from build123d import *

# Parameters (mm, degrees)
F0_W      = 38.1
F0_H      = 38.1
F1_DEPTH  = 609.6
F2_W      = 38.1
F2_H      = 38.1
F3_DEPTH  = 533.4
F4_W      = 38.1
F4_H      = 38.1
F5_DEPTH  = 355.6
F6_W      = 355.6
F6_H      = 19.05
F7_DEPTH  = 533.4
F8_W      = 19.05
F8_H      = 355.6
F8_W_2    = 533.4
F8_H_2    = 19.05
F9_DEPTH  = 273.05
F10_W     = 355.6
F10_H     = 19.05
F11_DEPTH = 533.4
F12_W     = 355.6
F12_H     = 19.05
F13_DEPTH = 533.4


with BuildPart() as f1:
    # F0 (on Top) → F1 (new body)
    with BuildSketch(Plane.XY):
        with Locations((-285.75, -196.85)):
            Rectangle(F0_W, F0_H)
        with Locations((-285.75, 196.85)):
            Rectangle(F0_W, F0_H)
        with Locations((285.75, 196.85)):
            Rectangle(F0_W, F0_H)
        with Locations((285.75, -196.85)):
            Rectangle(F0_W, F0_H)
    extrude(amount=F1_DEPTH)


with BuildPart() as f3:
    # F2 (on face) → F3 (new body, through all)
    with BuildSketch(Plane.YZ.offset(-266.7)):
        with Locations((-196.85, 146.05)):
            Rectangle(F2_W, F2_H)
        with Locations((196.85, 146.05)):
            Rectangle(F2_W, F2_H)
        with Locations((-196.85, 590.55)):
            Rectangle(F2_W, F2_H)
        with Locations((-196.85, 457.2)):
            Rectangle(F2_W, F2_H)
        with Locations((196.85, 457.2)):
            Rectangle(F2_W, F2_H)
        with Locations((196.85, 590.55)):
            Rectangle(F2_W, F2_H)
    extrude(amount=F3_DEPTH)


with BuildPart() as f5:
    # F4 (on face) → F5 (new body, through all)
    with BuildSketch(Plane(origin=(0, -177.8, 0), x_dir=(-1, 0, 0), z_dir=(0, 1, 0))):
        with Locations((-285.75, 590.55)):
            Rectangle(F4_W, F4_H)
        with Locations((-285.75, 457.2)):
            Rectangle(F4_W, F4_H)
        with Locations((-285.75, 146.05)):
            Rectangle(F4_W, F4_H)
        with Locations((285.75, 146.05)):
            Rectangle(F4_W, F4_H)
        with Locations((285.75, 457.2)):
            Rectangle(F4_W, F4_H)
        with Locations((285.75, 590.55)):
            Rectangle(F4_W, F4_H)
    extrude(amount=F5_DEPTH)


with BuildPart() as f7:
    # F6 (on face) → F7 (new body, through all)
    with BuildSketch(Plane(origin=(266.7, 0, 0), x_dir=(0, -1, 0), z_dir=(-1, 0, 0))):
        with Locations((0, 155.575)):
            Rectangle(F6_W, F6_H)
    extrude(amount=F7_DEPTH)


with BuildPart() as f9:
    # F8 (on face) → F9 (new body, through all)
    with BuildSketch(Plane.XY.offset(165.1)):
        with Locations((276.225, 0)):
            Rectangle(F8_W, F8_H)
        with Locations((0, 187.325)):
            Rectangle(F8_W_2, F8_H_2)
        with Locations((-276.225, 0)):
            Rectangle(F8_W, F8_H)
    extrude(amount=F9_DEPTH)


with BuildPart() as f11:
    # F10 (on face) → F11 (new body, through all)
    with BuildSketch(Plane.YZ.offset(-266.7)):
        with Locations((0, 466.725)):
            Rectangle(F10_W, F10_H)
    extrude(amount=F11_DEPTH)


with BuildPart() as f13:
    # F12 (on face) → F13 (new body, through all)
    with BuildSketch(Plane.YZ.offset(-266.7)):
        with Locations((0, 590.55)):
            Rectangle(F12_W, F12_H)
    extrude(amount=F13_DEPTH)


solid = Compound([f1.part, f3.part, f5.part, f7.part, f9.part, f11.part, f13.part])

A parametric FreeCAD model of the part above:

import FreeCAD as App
import Part
import Sketcher
Q = App.Units.Quantity


def add_polygon(sketch, points):
    """Adds a closed chain of lines whose ends are joined by coincident constraints."""
    first, n = sketch.GeometryCount, len(points)
    for a, b in zip(points, points[1:] + points[:1]):
        sketch.addGeometry(Part.LineSegment(App.Vector(*a, 0), App.Vector(*b, 0)), False)
    for i in range(n):
        sketch.addConstraint(Sketcher.Constraint("Coincident", first + i, 2, first + (i + 1) % n, 1))

doc = App.newDocument("Part")
body = doc.addObject("PartDesign::Body", "Body")
body.AllowCompound = True

# Sketch on XY plane
sketch1 = body.newObject("Sketcher::SketchObject", "Sketch")
sketch1.AttachmentSupport = (doc.getObject("XY_Plane"), [""])
sketch1.MapMode = "FlatFace"
add_polygon(sketch1, [(-304.8, -177.8), (-304.8, -215.9), (-266.7, -215.9), (-266.7, -177.8)])  # lines 0-3
add_polygon(sketch1, [(-304.8, 215.9), (-304.8, 177.8), (-266.7, 177.8), (-266.7, 215.9)])  # lines 4-7
add_polygon(sketch1, [(266.7, 215.9), (266.7, 177.8), (304.8, 177.8), (304.8, 215.9)])  # lines 8-11
add_polygon(sketch1, [(266.7, -177.8), (266.7, -215.9), (304.8, -215.9), (304.8, -177.8)])  # lines 12-15
sketch1.addConstraint([
    Sketcher.Constraint("Vertical", 0),
    Sketcher.Constraint("Horizontal", 1),
    Sketcher.Constraint("Vertical", 2),
    Sketcher.Constraint("Horizontal", 3),
    Sketcher.Constraint("Vertical", 4),
    Sketcher.Constraint("Horizontal", 5),
    Sketcher.Constraint("Vertical", 6),
    Sketcher.Constraint("Horizontal", 7),
    Sketcher.Constraint("Vertical", 8),
    Sketcher.Constraint("Horizontal", 9),
    Sketcher.Constraint("Vertical", 10),
    Sketcher.Constraint("Horizontal", 11),
    Sketcher.Constraint("Vertical", 12),
    Sketcher.Constraint("Horizontal", 13),
    Sketcher.Constraint("Vertical", 14),
    Sketcher.Constraint("Horizontal", 15),
    Sketcher.Constraint("Symmetric", 2, 2, 8, 2, -1, 1),
    Sketcher.Constraint("Symmetric", 0, 2, 10, 2, -1, 1),
    Sketcher.Constraint("Symmetric", 6, 2, 12, 2, -1, 1),
    Sketcher.Constraint("Symmetric", 4, 2, 14, 2, -1, 1),
    Sketcher.Constraint("Symmetric", 5, 2, 8, 2, -2),
    Sketcher.Constraint("Symmetric", 7, 2, 10, 2, -2),
    Sketcher.Constraint("Equal", 15, 0),
    Sketcher.Constraint("DistanceX", 1, 1, 1, 2, Q("1.5 in")),
    Sketcher.Constraint("DistanceX", 0, 2, -1, 1, Q("12 in")),
    Sketcher.Constraint("DistanceY", 2, 2, -1, 1, Q("7 in")),
])
pad1 = body.newObject("PartDesign::Pad", "Pad")
pad1.Profile = sketch1
pad1.Length = Q("24 in")
body2 = doc.addObject("PartDesign::Body", "Body001")
body2.AllowCompound = True

# Sketch on YZ plane
sketch2 = body2.newObject("Sketcher::SketchObject", "Sketch001")
sketch2.AttachmentSupport = (doc.getObject("YZ_Plane001"), [""])
sketch2.MapMode = "FlatFace"
sketch2.AttachmentOffset = App.Placement(App.Vector(0, 0, -10.5 * 25.4), App.Rotation())
add_polygon(sketch2, [(-215.9, 165.1), (-215.9, 127), (-177.8, 127), (-177.8, 165.1)])  # lines 0-3
add_polygon(sketch2, [(177.8, 165.1), (177.8, 127), (215.9, 127), (215.9, 165.1)])  # lines 4-7
add_polygon(sketch2, [(-215.9, 609.6), (-215.9, 571.5), (-177.8, 571.5), (-177.8, 609.6)])  # lines 8-11
add_polygon(sketch2, [(-215.9, 476.25), (-215.9, 438.15), (-177.8, 438.15), (-177.8, 476.25)])  # lines 12-15
add_polygon(sketch2, [(177.8, 476.25), (177.8, 438.15), (215.9, 438.15), (215.9, 476.25)])  # lines 16-19
add_polygon(sketch2, [(177.8, 609.6), (177.8, 571.5), (215.9, 571.5), (215.9, 609.6)])  # lines 20-23
sketch2.addConstraint([
    Sketcher.Constraint("Vertical", 0),
    Sketcher.Constraint("Horizontal", 1),
    Sketcher.Constraint("Vertical", 2),
    Sketcher.Constraint("Horizontal", 3),
    Sketcher.Constraint("Vertical", 4),
    Sketcher.Constraint("Horizontal", 5),
    Sketcher.Constraint("Vertical", 6),
    Sketcher.Constraint("Horizontal", 7),
    Sketcher.Constraint("Vertical", 8),
    Sketcher.Constraint("Horizontal", 9),
    Sketcher.Constraint("Vertical", 10),
    Sketcher.Constraint("Horizontal", 11),
    Sketcher.Constraint("Vertical", 12),
    Sketcher.Constraint("Horizontal", 13),
    Sketcher.Constraint("Vertical", 14),
    Sketcher.Constraint("Horizontal", 15),
    Sketcher.Constraint("Vertical", 16),
    Sketcher.Constraint("Horizontal", 17),
    Sketcher.Constraint("Vertical", 18),
    Sketcher.Constraint("Horizontal", 19),
    Sketcher.Constraint("Vertical", 20),
    Sketcher.Constraint("Horizontal", 21),
    Sketcher.Constraint("Vertical", 22),
    Sketcher.Constraint("Horizontal", 23),
    Sketcher.Constraint("Symmetric", 1, 2, 4, 2, -2),
    Sketcher.Constraint("Symmetric", 3, 2, 6, 2, -2),
    Sketcher.Constraint("Symmetric", 13, 2, 16, 2, -2),
    Sketcher.Constraint("Symmetric", 15, 2, 18, 2, -2),
    Sketcher.Constraint("Symmetric", 9, 2, 20, 2, -2),
    Sketcher.Constraint("Symmetric", 11, 2, 22, 2, -2),
    Sketcher.Constraint("Vertical", 3, 2, 8, 2),
    Sketcher.Constraint("Vertical", 2, 2, 9, 2),
    Sketcher.Constraint("Vertical", 11, 2, 12, 2),
    Sketcher.Constraint("Vertical", 10, 2, 13, 2),
    Sketcher.Constraint("Equal", 23, 0),
    Sketcher.Constraint("Equal", 6, 8),
    Sketcher.Constraint("Equal", 10, 12),
    Sketcher.Constraint("DistanceX", 1, 1, 1, 2, Q("1.5 in")),
    Sketcher.Constraint("DistanceY", -1, 1, 0, 2, Q("5 in")),
    Sketcher.Constraint("DistanceX", 1, 2, -1, 1, Q("7 in")),
    Sketcher.Constraint("DistanceY", -1, 1, 10, 2, Q("24 in")),
    Sketcher.Constraint("DistanceY", -1, 1, 12, 2, Q("17.25 in")),
])
pad2 = body2.newObject("PartDesign::Pad", "Pad001")
pad2.Profile = sketch2
pad2.Length = Q("21 in")
body3 = doc.addObject("PartDesign::Body", "Body002")
body3.AllowCompound = True

# Sketch on XZ plane
sketch3 = body3.newObject("Sketcher::SketchObject", "Sketch002")
sketch3.AttachmentSupport = (doc.getObject("XZ_Plane002"), [""])
sketch3.MapMode = "FlatFace"
sketch3.AttachmentOffset = App.Placement(App.Vector(0, 0, 7 * 25.4), App.Rotation())
add_polygon(sketch3, [(304.8, 609.6), (304.8, 571.5), (266.7, 571.5), (266.7, 609.6)])  # lines 0-3
add_polygon(sketch3, [(304.8, 476.25), (304.8, 438.15), (266.7, 438.15), (266.7, 476.25)])  # lines 4-7
add_polygon(sketch3, [(304.8, 165.1), (304.8, 127), (266.7, 127), (266.7, 165.1)])  # lines 8-11
add_polygon(sketch3, [(-266.7, 165.1), (-266.7, 127), (-304.8, 127), (-304.8, 165.1)])  # lines 12-15
add_polygon(sketch3, [(-266.7, 476.25), (-266.7, 438.15), (-304.8, 438.15), (-304.8, 476.25)])  # lines 16-19
add_polygon(sketch3, [(-266.7, 609.6), (-266.7, 571.5), (-304.8, 571.5), (-304.8, 609.6)])  # lines 20-23
sketch3.addConstraint([
    Sketcher.Constraint("Vertical", 0),
    Sketcher.Constraint("Horizontal", 1),
    Sketcher.Constraint("Vertical", 2),
    Sketcher.Constraint("Horizontal", 3),
    Sketcher.Constraint("Vertical", 4),
    Sketcher.Constraint("Horizontal", 5),
    Sketcher.Constraint("Vertical", 6),
    Sketcher.Constraint("Horizontal", 7),
    Sketcher.Constraint("Vertical", 8),
    Sketcher.Constraint("Horizontal", 9),
    Sketcher.Constraint("Vertical", 10),
    Sketcher.Constraint("Horizontal", 11),
    Sketcher.Constraint("Vertical", 12),
    Sketcher.Constraint("Horizontal", 13),
    Sketcher.Constraint("Vertical", 14),
    Sketcher.Constraint("Horizontal", 15),
    Sketcher.Constraint("Vertical", 16),
    Sketcher.Constraint("Horizontal", 17),
    Sketcher.Constraint("Vertical", 18),
    Sketcher.Constraint("Horizontal", 19),
    Sketcher.Constraint("Vertical", 20),
    Sketcher.Constraint("Horizontal", 21),
    Sketcher.Constraint("Vertical", 22),
    Sketcher.Constraint("Horizontal", 23),
    Sketcher.Constraint("Symmetric", 9, 2, 12, 2, -2),
    Sketcher.Constraint("Symmetric", 11, 2, 14, 2, -2),
    Sketcher.Constraint("Symmetric", 5, 2, 16, 2, -2),
    Sketcher.Constraint("Symmetric", 7, 2, 18, 2, -2),
    Sketcher.Constraint("Symmetric", 1, 2, 20, 2, -2),
    Sketcher.Constraint("Symmetric", 3, 2, 22, 2, -2),
    Sketcher.Constraint("Vertical", 3, 2, 4, 2),
    Sketcher.Constraint("Vertical", 2, 2, 5, 2),
    Sketcher.Constraint("Vertical", 7, 2, 8, 2),
    Sketcher.Constraint("Vertical", 6, 2, 9, 2),
    Sketcher.Constraint("Equal", 23, 0),
    Sketcher.Constraint("Equal", 2, 4),
    Sketcher.Constraint("Equal", 6, 8),
    Sketcher.Constraint("DistanceX", 1, 2, 1, 1, Q("1.5 in")),
    Sketcher.Constraint("DistanceX", -1, 1, 0, 2, Q("12 in")),
    Sketcher.Constraint("DistanceY", -1, 1, 2, 2, Q("24 in")),
    Sketcher.Constraint("DistanceY", -1, 1, 8, 2, Q("5 in")),
    Sketcher.Constraint("DistanceY", -1, 1, 4, 2, Q("17.25 in")),
])
pad3 = body3.newObject("PartDesign::Pad", "Pad002")
pad3.Profile = sketch3
pad3.Length = Q("14 in")
pad3.Reversed = True
body4 = doc.addObject("PartDesign::Body", "Body003")

# Sketch on YZ plane
sketch4 = body4.newObject("Sketcher::SketchObject", "Sketch003")
sketch4.AttachmentSupport = (doc.getObject("YZ_Plane003"), [""])
sketch4.MapMode = "FlatFace"
sketch4.AttachmentOffset = App.Placement(App.Vector(0, 0, 10.5 * 25.4), App.Rotation())
add_polygon(sketch4, [(177.8, 165.1), (177.8, 146.05), (-177.8, 146.05), (-177.8, 165.1)])  # lines 0-3
sketch4.addConstraint([
    Sketcher.Constraint("Vertical", 0),
    Sketcher.Constraint("Horizontal", 1),
    Sketcher.Constraint("Vertical", 2),
    Sketcher.Constraint("Horizontal", 3),
    Sketcher.Constraint("DistanceX", 1, 2, 1, 1, Q("14 in")),
    Sketcher.Constraint("DistanceX", -1, 1, 0, 2, Q("7 in")),
    Sketcher.Constraint("DistanceY", 0, 2, 0, 1, Q("0.75 in")),
    Sketcher.Constraint("DistanceY", -1, 1, 2, 2, Q("6.5 in")),
])
pad4 = body4.newObject("PartDesign::Pad", "Pad003")
pad4.Profile = sketch4
pad4.Length = Q("21 in")
pad4.Reversed = True
body5 = doc.addObject("PartDesign::Body", "Body004")
body5.AllowCompound = True

# Sketch on XY plane
sketch5 = body5.newObject("Sketcher::SketchObject", "Sketch004")
sketch5.AttachmentSupport = (doc.getObject("XY_Plane004"), [""])
sketch5.MapMode = "FlatFace"
sketch5.AttachmentOffset = App.Placement(App.Vector(0, 0, 6.5 * 25.4), App.Rotation())
add_polygon(sketch5, [(266.7, 177.8), (266.7, -177.8), (285.75, -177.8), (285.75, 177.8)])  # lines 0-3
add_polygon(sketch5, [(-266.7, 196.85), (-266.7, 177.8), (266.7, 177.8), (266.7, 196.85)])  # lines 4-7
add_polygon(sketch5, [(-285.75, 177.8), (-285.75, -177.8), (-266.7, -177.8), (-266.7, 177.8)])  # lines 8-11
sketch5.addConstraint([
    Sketcher.Constraint("Vertical", 0),
    Sketcher.Constraint("Horizontal", 1),
    Sketcher.Constraint("Vertical", 2),
    Sketcher.Constraint("Horizontal", 3),
    Sketcher.Constraint("Vertical", 4),
    Sketcher.Constraint("Horizontal", 5),
    Sketcher.Constraint("Vertical", 6),
    Sketcher.Constraint("Horizontal", 7),
    Sketcher.Constraint("Vertical", 8),
    Sketcher.Constraint("Horizontal", 9),
    Sketcher.Constraint("Vertical", 10),
    Sketcher.Constraint("Horizontal", 11),
    Sketcher.Constraint("Coincident", 5, 2, 3, 2),
    Sketcher.Constraint("Coincident", 10, 2, 4, 2),
    Sketcher.Constraint("Symmetric", 0, 2, 4, 2, -1, 1),
    Sketcher.Constraint("Symmetric", 2, 2, 8, 2, -1, 1),
    Sketcher.Constraint("Equal", 11, 4),
    Sketcher.Constraint("DistanceX", 5, 1, 5, 2, Q("21 in")),
    Sketcher.Constraint("DistanceY", 0, 2, 0, 1, Q("14 in")),
    Sketcher.Constraint("DistanceX", 1, 1, 1, 2, Q("0.75 in")),
])
pad5 = body5.newObject("PartDesign::Pad", "Pad004")
pad5.Profile = sketch5
pad5.Length = Q("10.75 in")
body6 = doc.addObject("PartDesign::Body", "Body005")

# Sketch on YZ plane
sketch6 = body6.newObject("Sketcher::SketchObject", "Sketch005")
sketch6.AttachmentSupport = (doc.getObject("YZ_Plane005"), [""])
sketch6.MapMode = "FlatFace"
sketch6.AttachmentOffset = App.Placement(App.Vector(0, 0, -10.5 * 25.4), App.Rotation())
add_polygon(sketch6, [(-177.8, 476.25), (-177.8, 457.2), (177.8, 457.2), (177.8, 476.25)])  # lines 0-3
sketch6.addConstraint([
    Sketcher.Constraint("Vertical", 0),
    Sketcher.Constraint("Horizontal", 1),
    Sketcher.Constraint("Vertical", 2),
    Sketcher.Constraint("Horizontal", 3),
    Sketcher.Constraint("DistanceX", 1, 1, 1, 2, Q("14 in")),
    Sketcher.Constraint("DistanceX", 0, 2, -1, 1, Q("7 in")),
    Sketcher.Constraint("DistanceY", -1, 1, 0, 2, Q("18 in")),
    Sketcher.Constraint("DistanceY", 0, 2, 0, 1, Q("0.75 in")),
])
pad6 = body6.newObject("PartDesign::Pad", "Pad005")
pad6.Profile = sketch6
pad6.Length = Q("21 in")
body7 = doc.addObject("PartDesign::Body", "Body006")

# Sketch on YZ plane
sketch7 = body7.newObject("Sketcher::SketchObject", "Sketch006")
sketch7.AttachmentSupport = (doc.getObject("YZ_Plane006"), [""])
sketch7.MapMode = "FlatFace"
sketch7.AttachmentOffset = App.Placement(App.Vector(0, 0, -10.5 * 25.4), App.Rotation())
add_polygon(sketch7, [(-177.8, 600.075), (-177.8, 581.025), (177.8, 581.025), (177.8, 600.075)])  # lines 0-3
sketch7.addConstraint([
    Sketcher.Constraint("Vertical", 0),
    Sketcher.Constraint("Horizontal", 1),
    Sketcher.Constraint("Vertical", 2),
    Sketcher.Constraint("Horizontal", 3),
    Sketcher.Constraint("DistanceX", 1, 1, 1, 2, Q("14 in")),
    Sketcher.Constraint("DistanceX", 0, 2, -1, 1, Q("7 in")),
    Sketcher.Constraint("DistanceY", 0, 2, 0, 1, Q("0.75 in")),
    Sketcher.Constraint("DistanceY", -1, 1, 0, 2, Q("22.875 in")),
])
pad7 = body7.newObject("PartDesign::Pad", "Pad006")
pad7.Profile = sketch7
pad7.Length = Q("21 in")

doc.recompute()
